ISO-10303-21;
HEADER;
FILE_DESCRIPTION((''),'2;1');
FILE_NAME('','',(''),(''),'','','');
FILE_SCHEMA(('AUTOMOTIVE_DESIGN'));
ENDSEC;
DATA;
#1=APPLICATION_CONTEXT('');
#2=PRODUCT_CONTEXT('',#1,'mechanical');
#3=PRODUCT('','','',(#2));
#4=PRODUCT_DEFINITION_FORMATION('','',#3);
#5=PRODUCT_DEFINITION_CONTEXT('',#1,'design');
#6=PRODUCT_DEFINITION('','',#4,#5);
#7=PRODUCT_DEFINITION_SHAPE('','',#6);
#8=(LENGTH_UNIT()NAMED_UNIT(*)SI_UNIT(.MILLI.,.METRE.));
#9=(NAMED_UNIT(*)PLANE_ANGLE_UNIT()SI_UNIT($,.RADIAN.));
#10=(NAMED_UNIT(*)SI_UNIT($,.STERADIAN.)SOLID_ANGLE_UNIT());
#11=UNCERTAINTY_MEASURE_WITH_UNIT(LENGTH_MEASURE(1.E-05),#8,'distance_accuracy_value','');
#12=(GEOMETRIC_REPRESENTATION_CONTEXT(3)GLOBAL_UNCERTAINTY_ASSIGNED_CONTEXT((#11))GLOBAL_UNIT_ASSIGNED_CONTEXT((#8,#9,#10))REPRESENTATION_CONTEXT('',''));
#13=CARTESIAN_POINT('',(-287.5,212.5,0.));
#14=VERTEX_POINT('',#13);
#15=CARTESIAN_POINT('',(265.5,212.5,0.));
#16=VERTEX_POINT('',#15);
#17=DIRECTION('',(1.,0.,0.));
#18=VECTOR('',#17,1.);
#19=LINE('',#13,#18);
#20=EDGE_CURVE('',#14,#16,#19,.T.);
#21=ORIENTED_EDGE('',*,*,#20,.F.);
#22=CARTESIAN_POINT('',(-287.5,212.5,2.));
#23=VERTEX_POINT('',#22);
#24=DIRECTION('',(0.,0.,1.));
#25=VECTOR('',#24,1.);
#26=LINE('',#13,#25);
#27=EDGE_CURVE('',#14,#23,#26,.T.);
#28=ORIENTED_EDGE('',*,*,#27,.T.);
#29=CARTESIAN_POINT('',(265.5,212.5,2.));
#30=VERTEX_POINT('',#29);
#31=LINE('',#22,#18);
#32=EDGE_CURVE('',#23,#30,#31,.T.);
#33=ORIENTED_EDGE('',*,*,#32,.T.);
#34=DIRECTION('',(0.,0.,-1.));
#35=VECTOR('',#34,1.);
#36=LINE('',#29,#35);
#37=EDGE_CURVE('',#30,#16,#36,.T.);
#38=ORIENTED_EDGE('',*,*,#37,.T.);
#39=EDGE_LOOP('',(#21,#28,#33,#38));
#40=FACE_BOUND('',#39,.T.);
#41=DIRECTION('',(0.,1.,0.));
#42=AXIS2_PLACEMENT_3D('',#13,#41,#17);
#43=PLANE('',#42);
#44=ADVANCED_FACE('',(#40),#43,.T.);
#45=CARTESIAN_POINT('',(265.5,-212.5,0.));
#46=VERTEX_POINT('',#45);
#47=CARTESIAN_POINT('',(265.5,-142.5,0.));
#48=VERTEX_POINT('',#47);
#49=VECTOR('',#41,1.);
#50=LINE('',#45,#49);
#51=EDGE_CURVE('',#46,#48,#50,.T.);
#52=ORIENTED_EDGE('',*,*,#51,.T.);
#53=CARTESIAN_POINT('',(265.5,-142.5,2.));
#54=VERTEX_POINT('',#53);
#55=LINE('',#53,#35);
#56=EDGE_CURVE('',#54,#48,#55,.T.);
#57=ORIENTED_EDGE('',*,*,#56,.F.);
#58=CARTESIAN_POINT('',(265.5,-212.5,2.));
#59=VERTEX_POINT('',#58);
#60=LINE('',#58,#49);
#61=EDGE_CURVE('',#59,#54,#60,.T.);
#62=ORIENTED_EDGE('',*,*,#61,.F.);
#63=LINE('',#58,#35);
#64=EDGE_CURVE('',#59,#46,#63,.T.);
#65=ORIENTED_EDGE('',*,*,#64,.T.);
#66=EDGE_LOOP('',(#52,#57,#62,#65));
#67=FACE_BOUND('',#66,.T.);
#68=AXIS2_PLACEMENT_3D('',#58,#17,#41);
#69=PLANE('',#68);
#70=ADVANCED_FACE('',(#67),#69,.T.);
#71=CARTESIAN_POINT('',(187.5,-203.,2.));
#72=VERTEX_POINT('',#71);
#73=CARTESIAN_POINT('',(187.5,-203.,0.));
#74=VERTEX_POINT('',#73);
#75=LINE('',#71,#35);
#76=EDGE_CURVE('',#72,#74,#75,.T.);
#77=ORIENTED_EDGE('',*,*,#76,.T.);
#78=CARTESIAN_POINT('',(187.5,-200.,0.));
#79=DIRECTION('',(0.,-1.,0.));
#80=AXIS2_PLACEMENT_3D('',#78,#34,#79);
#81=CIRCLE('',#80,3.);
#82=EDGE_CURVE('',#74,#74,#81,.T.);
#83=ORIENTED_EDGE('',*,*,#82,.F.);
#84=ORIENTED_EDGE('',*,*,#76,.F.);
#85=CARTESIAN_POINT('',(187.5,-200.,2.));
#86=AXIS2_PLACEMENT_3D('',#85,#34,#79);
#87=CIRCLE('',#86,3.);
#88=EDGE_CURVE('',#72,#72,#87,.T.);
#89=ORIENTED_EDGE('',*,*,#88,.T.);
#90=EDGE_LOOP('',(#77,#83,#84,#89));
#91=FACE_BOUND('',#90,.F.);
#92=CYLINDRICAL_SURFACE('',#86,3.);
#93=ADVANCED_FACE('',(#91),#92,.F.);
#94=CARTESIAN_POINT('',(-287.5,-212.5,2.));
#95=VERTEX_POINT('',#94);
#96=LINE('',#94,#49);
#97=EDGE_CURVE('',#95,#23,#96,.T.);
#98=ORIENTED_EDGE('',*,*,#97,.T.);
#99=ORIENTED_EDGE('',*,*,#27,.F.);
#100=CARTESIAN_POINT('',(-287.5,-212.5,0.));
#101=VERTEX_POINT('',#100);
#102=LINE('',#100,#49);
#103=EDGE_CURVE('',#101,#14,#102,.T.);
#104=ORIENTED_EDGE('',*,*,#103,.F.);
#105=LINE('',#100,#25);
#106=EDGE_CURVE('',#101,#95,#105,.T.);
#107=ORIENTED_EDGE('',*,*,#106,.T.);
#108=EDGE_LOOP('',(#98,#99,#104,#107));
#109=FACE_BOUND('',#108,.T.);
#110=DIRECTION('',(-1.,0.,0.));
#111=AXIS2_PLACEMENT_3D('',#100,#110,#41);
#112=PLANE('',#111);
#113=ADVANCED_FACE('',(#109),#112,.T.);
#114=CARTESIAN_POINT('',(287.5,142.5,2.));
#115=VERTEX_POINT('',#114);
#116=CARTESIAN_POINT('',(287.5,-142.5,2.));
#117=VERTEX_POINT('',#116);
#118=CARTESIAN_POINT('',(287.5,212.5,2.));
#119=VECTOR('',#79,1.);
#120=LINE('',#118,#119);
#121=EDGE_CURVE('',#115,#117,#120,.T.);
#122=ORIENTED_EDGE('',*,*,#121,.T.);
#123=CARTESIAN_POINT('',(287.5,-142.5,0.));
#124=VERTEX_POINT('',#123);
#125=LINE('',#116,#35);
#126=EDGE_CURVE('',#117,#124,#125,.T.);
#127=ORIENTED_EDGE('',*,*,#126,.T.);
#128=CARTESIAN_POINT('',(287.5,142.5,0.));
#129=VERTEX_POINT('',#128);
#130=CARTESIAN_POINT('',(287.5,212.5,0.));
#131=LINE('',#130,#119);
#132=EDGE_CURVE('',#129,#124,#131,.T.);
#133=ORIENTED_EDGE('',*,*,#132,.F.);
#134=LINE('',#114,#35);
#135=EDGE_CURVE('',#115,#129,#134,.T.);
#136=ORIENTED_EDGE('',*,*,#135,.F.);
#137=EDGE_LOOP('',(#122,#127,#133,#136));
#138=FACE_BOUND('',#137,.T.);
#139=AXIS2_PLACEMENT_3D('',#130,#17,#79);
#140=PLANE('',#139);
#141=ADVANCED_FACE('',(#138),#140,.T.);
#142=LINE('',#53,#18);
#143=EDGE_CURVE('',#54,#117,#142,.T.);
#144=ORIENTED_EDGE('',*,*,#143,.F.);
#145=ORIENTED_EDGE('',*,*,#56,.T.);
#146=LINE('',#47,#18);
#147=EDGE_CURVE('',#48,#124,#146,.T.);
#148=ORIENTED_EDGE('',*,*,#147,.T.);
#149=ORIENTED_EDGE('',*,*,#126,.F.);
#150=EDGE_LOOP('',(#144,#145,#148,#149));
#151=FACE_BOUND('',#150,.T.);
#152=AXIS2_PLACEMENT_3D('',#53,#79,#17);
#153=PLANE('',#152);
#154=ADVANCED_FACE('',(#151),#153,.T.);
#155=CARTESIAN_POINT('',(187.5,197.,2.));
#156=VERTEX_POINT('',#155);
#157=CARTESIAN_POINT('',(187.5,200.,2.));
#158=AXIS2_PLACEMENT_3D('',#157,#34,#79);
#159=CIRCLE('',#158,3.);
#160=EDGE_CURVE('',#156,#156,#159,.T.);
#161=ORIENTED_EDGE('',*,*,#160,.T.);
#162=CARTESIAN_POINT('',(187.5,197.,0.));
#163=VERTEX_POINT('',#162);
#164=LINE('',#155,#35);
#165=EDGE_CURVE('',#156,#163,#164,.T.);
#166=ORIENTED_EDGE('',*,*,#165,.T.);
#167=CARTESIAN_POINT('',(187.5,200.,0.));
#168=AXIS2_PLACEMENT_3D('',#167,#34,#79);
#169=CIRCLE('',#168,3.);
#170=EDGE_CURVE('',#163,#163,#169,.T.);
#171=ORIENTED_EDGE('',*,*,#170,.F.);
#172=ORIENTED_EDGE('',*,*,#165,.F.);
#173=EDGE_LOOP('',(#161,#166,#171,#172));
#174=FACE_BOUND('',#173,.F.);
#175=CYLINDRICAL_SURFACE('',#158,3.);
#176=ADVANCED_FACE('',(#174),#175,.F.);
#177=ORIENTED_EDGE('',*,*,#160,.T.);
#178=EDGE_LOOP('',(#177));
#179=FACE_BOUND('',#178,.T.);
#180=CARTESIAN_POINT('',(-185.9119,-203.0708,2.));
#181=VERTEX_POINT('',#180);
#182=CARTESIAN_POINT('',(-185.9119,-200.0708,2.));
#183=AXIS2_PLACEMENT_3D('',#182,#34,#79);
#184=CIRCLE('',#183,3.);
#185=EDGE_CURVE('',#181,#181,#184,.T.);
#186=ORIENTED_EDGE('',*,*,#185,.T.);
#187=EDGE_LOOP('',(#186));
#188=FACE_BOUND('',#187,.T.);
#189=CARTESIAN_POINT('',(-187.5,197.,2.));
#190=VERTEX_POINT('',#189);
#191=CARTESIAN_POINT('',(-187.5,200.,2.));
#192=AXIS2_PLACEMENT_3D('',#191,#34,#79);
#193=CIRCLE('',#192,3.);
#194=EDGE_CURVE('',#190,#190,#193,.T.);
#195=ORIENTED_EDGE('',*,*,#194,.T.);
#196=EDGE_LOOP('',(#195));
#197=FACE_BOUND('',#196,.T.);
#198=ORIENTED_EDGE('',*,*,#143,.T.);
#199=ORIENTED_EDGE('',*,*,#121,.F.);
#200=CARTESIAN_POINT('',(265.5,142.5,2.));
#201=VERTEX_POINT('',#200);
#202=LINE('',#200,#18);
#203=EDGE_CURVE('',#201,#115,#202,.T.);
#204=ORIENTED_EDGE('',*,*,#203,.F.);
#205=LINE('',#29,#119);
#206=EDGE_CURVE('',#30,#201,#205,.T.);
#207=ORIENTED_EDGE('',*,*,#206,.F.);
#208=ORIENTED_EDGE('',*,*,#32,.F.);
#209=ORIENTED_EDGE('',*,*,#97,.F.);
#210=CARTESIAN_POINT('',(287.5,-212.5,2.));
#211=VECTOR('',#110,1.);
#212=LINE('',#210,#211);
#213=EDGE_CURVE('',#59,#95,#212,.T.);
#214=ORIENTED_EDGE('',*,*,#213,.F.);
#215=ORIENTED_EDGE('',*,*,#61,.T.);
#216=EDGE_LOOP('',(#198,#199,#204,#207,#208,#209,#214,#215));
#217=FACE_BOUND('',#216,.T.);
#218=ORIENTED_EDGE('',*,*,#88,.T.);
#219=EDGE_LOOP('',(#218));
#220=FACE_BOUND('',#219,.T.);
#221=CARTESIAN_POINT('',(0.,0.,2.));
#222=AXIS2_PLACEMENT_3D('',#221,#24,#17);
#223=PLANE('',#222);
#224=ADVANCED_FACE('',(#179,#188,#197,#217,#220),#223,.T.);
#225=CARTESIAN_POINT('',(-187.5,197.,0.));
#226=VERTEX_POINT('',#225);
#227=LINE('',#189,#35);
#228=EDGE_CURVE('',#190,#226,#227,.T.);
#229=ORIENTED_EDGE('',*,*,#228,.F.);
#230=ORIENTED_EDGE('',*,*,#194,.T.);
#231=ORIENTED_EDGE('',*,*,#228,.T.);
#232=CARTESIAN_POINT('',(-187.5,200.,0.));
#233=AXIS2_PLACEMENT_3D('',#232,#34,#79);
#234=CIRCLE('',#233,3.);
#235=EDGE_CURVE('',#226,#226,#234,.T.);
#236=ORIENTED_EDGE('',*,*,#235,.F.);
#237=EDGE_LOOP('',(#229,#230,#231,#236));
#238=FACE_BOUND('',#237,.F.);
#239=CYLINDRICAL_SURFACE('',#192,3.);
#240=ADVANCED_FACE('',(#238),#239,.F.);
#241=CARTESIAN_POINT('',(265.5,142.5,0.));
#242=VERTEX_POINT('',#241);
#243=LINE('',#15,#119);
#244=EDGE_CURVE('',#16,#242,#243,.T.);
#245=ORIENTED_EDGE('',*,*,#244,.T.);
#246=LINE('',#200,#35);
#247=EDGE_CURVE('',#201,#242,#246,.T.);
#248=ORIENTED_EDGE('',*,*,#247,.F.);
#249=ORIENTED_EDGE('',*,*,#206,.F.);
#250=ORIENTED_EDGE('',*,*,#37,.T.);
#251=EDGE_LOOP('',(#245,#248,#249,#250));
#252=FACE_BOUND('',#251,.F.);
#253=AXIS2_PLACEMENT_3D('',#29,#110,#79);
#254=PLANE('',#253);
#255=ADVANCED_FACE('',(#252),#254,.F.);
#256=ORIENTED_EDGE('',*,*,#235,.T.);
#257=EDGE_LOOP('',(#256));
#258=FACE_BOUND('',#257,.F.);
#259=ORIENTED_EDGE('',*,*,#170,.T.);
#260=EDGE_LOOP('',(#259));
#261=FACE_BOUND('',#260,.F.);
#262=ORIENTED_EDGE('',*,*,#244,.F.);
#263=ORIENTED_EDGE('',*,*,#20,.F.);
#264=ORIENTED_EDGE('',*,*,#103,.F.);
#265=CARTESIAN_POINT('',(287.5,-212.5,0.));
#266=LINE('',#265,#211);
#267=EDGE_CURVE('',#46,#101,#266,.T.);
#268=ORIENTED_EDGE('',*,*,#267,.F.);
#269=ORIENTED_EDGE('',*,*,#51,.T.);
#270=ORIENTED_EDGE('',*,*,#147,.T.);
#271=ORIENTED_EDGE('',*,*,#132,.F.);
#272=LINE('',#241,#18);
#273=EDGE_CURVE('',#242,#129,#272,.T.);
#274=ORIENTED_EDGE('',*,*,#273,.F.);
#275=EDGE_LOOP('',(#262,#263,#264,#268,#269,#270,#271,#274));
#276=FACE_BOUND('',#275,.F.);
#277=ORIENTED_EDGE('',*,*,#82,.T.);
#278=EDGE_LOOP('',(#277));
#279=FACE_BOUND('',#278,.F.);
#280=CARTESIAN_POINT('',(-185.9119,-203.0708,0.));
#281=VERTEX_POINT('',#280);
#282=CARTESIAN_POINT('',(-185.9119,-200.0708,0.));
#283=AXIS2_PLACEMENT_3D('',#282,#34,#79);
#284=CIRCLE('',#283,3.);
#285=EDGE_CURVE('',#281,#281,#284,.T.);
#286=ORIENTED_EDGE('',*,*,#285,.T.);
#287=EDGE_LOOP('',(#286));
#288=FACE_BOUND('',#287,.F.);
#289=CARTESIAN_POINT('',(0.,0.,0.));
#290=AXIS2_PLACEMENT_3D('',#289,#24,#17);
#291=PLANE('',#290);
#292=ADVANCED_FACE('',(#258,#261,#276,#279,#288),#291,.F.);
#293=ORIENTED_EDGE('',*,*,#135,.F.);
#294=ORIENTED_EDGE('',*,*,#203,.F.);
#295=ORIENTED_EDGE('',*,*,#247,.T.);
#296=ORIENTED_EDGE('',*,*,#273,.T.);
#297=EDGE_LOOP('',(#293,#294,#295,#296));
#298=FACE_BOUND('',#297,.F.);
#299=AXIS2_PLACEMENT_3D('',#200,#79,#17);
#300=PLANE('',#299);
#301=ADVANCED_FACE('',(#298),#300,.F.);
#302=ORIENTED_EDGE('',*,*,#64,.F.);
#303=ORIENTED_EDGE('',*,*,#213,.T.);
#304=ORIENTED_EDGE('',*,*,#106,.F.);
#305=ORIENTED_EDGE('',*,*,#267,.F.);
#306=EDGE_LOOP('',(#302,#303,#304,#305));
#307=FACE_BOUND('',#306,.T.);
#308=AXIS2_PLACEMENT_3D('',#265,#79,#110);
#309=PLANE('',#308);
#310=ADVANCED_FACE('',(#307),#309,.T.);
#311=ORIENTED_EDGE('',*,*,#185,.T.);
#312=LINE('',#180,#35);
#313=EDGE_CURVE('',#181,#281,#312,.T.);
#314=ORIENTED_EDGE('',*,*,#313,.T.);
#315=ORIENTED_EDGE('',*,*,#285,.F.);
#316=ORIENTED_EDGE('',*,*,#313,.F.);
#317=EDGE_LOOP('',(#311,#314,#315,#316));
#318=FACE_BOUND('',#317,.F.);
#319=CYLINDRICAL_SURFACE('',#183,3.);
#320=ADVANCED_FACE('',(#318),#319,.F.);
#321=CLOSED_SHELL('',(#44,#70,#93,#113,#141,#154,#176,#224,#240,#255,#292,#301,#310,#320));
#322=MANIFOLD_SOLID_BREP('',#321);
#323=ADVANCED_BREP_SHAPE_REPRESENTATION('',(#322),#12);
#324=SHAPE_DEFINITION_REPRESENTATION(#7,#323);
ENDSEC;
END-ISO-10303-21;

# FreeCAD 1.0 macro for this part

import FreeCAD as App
import Part
import Sketcher
from FreeCAD import Vector
Q = App.Units.Quantity

doc = App.newDocument("Part")
body = doc.addObject("PartDesign::Body", "Body")

# Sketch on XY plane
sketch1 = body.newObject("Sketcher::SketchObject", "Sketch")
sketch1.AttachmentSupport = (doc.getObject("XY_Plane"), [""])
sketch1.MapMode = "FlatFace"
sketch1.addGeometry([
    Part.LineSegment(Vector(288, 212, 0), Vector(-288, 212, 0)),
    Part.LineSegment(Vector(-288, 212, 0), Vector(-288, -212, 0)),
    Part.LineSegment(Vector(-288, -212, 0), Vector(288, -212, 0)),
    Part.LineSegment(Vector(288, -212, 0), Vector(288, 212, 0)),
], False)
sketch1.addConstraint([
    Sketcher.Constraint("Coincident", 0, 2, 1, 1),
    Sketcher.Constraint("Coincident", 1, 2, 2, 1),
    Sketcher.Constraint("Coincident", 2, 2, 3, 1),
    Sketcher.Constraint("Coincident", 3, 2, 0, 1),
    Sketcher.Constraint("Horizontal", 0),
    Sketcher.Constraint("Vertical", 1),
    Sketcher.Constraint("Horizontal", 2),
    Sketcher.Constraint("Vertical", 3),
    Sketcher.Constraint("Symmetric", 0, 2, 2, 2, -1, 1),
    Sketcher.Constraint("DistanceX", 0, 2, 0, 1, Q("575 mm")),
    Sketcher.Constraint("DistanceY", 1, 2, 1, 1, Q("425 mm")),
])
pad1 = body.newObject("PartDesign::Pad", "Pad")
pad1.Profile = sketch1
pad1.Length = 2

# Sketch on XY plane
sketch2 = body.newObject("Sketcher::SketchObject", "Sketch001")
sketch2.AttachmentSupport = (doc.getObject("XY_Plane"), [""])
sketch2.MapMode = "FlatFace"
sketch2.AttachmentOffset = App.Placement(Vector(0, 0, 2), App.Rotation())
sketch2.addGeometry([
    Part.LineSegment(Vector(288, 142, 0), Vector(288, 212, 0)),  # 0
    Part.LineSegment(Vector(288, 212, 0), Vector(266, 212, 0)),  # 1
    Part.LineSegment(Vector(266, 212, 0), Vector(266, 142, 0)),  # 2
    Part.LineSegment(Vector(266, 142, 0), Vector(288, 142, 0)),  # 3
    Part.LineSegment(Vector(266, -212, 0), Vector(288, -212, 0)),  # 4
    Part.LineSegment(Vector(288, -212, 0), Vector(288, -142, 0)),  # 5
    Part.LineSegment(Vector(288, -142, 0), Vector(266, -142, 0)),  # 6
    Part.LineSegment(Vector(266, -142, 0), Vector(266, -212, 0)),  # 7
], False)
sketch2.addConstraint([
    Sketcher.Constraint("Coincident", 0, 2, 1, 1),
    Sketcher.Constraint("Coincident", 1, 2, 2, 1),
    Sketcher.Constraint("Coincident", 2, 2, 3, 1),
    Sketcher.Constraint("Coincident", 3, 2, 0, 1),
    Sketcher.Constraint("Coincident", 4, 2, 5, 1),
    Sketcher.Constraint("Coincident", 5, 2, 6, 1),
    Sketcher.Constraint("Coincident", 6, 2, 7, 1),
    Sketcher.Constraint("Coincident", 7, 2, 4, 1),
    Sketcher.Constraint("Vertical", 0),
    Sketcher.Constraint("Horizontal", 1),
    Sketcher.Constraint("Vertical", 2),
    Sketcher.Constraint("Horizontal", 3),
    Sketcher.Constraint("Horizontal", 4),
    Sketcher.Constraint("Vertical", 5),
    Sketcher.Constraint("Horizontal", 6),
    Sketcher.Constraint("Vertical", 7),
    Sketcher.Constraint("Symmetric", 0, 2, 4, 2, -1),
    Sketcher.Constraint("Symmetric", 2, 2, 6, 2, -1),
    Sketcher.Constraint("DistanceX", 1, 2, 1, 1, Q("22 mm")),
    Sketcher.Constraint("DistanceY", 0, 1, 0, 2, Q("70 mm")),
    Sketcher.Constraint("DistanceY", 4, 2, 3, 2, Q("355 mm")),
    Sketcher.Constraint("DistanceX", -1, 1, 0, 2, Q("287.5 mm")),
])
pocket1 = body.newObject("PartDesign::Pocket", "Pocket")
pocket1.Profile = sketch2
pocket1.Length = 2

# Sketch on XY plane
sketch3 = body.newObject("Sketcher::SketchObject", "Sketch002")
sketch3.AttachmentSupport = (doc.getObject("XY_Plane"), [""])
sketch3.MapMode = "FlatFace"
sketch3.AttachmentOffset = App.Placement(Vector(0, 0, 2), App.Rotation())
sketch3.addGeometry([
    Part.Circle(Vector(-187.5, 200, 0), Vector(0, 0, 1), 3),
    Part.Circle(Vector(187.5, 200, 0), Vector(0, 0, 1), 3),
    Part.Circle(Vector(187.5, -200, 0), Vector(0, 0, 1), 3),
    Part.Circle(Vector(-185.9, -200.1, 0), Vector(0, 0, 1), 3),
], False)
sketch3.addConstraint([
    Sketcher.Constraint("Equal", 0, 1),
    Sketcher.Constraint("Equal", 1, 2),
    Sketcher.Constraint("Equal", 2, 3),
    Sketcher.Constraint("Symmetric", 0, 3, 2, 3, -1, 1),
    Sketcher.Constraint("Symmetric", 0, 3, 1, 3, -2),
    Sketcher.Constraint("Diameter", 0, Q("6 mm")),
    Sketcher.Constraint("DistanceY", -1, 1, 0, 3, Q("200 mm")),
    Sketcher.Constraint("DistanceX", 0, 3, 1, 3, Q("375 mm")),
    Sketcher.Constraint("DistanceX", 3, 3, -1, 1, Q("185.912 mm")),
    Sketcher.Constraint("DistanceY", 3, 3, -1, 1, Q("200.0708 mm")),
])
doc.recompute()
hole = body.newObject("PartDesign::Hole", "Hole")
hole.Profile = sketch3
hole.ThreadType = "None"
hole.Diameter = 6
hole.DepthType = "Dimension"
hole.Depth = 10
hole.DrillPoint = "Angled"
hole.DrillPointAngle = 118

doc.recompute()
